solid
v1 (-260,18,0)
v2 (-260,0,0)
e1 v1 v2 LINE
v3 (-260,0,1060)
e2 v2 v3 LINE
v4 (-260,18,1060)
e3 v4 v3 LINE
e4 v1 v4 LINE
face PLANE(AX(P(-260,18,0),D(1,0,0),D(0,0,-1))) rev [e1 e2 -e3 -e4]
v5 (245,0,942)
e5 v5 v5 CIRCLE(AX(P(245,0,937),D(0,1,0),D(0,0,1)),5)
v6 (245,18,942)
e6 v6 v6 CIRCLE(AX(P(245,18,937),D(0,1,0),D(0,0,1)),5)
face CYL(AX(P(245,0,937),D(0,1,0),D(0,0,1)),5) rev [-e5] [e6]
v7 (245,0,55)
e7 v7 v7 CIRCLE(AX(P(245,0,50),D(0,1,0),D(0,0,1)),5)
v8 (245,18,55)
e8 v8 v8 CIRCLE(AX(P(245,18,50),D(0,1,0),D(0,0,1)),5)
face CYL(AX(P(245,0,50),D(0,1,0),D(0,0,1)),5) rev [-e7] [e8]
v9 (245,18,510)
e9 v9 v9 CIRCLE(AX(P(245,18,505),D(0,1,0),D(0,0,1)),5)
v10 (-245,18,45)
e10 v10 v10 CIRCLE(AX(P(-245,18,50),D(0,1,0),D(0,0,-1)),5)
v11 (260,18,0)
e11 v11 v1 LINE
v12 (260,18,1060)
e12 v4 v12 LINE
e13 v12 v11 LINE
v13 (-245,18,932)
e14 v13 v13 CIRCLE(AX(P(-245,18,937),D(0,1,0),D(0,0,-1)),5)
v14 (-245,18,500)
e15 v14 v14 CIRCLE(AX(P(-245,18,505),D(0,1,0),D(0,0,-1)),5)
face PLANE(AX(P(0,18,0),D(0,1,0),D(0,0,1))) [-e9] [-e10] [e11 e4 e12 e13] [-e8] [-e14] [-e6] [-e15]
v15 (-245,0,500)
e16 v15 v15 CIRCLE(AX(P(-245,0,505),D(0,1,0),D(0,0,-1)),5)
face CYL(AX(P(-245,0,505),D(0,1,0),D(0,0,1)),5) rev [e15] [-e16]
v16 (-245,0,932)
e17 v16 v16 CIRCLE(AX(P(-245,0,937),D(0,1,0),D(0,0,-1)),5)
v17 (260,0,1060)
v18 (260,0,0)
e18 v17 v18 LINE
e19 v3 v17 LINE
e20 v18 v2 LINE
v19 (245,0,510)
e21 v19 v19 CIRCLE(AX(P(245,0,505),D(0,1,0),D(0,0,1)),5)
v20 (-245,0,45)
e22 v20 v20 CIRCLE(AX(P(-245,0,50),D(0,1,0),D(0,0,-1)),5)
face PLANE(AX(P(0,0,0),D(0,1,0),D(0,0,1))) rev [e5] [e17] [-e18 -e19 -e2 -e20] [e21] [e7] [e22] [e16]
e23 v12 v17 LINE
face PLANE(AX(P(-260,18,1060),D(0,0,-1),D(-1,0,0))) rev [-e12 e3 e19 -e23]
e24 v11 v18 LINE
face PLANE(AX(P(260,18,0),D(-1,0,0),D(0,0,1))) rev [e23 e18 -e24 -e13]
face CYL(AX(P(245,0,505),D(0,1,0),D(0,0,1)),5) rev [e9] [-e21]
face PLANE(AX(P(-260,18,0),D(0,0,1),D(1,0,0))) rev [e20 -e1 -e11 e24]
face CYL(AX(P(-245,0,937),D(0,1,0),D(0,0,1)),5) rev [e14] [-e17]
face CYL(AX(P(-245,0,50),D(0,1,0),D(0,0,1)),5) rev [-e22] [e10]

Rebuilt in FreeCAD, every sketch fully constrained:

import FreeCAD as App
import Part
import Sketcher


def add_polygon(sketch, points):
    """Adds a closed chain of lines whose ends are joined by coincident constraints."""
    first, n = sketch.GeometryCount, len(points)
    for a, b in zip(points, points[1:] + points[:1]):
        sketch.addGeometry(Part.LineSegment(App.Vector(*a, 0), App.Vector(*b, 0)), False)
    for i in range(n):
        sketch.addConstraint(Sketcher.Constraint("Coincident", first + i, 2, first + (i + 1) % n, 1))

doc = App.newDocument("Part")
body = doc.addObject("PartDesign::Body", "Body")

sketch1 = body.newObject("Sketcher::SketchObject", "Sketch")
sketch1.AttachmentSupport = (doc.getObject("XZ_Plane"), [""])
sketch1.MapMode = "FlatFace"
add_polygon(sketch1, [(-260, 0), (-260, 1060), (260, 1060), (260, 0)])
sketch1.addConstraint([
    Sketcher.Constraint("Vertical", 0),
    Sketcher.Constraint("Horizontal", 1),
    Sketcher.Constraint("Vertical", 2),
    Sketcher.Constraint("Horizontal", 3),
    Sketcher.Constraint("Symmetric", 2, 2, 3, 2, -1, 1),
    Sketcher.Constraint("DistanceX", 1, 1, 1, 2, 520.0),
    Sketcher.Constraint("DistanceY", 0, 1, 0, 2, 1060.0),
])
pad1 = body.newObject("PartDesign::Pad", "Pad")
pad1.Profile = sketch1
pad1.Length = 18
pad1.Reversed = True

sketch2 = body.newObject("Sketcher::SketchObject", "Sketch001")
sketch2.AttachmentSupport = (doc.getObject("XZ_Plane"), [""])
sketch2.MapMode = "FlatFace"
sketch2.AttachmentOffset = App.Placement(App.Vector(0, 0, -18), App.Rotation())
sketch2.addGeometry([
    Part.Circle(App.Vector(245, 50, 0), App.Vector(0, 0, 1), 5),
    Part.Circle(App.Vector(-245, 50, 0), App.Vector(0, 0, 1), 5),
    Part.Circle(App.Vector(245, 505, 0), App.Vector(0, 0, 1), 5),
    Part.Circle(App.Vector(245, 937, 0), App.Vector(0, 0, 1), 5),
    Part.Circle(App.Vector(-245, 937, 0), App.Vector(0, 0, 1), 5),
    Part.Circle(App.Vector(-245, 505, 0), App.Vector(0, 0, 1), 5),
], False)
sketch2.addConstraint([
    Sketcher.Constraint("Equal", 0, 1),
    Sketcher.Constraint("Equal", 1, 2),
    Sketcher.Constraint("Equal", 2, 3),
    Sketcher.Constraint("Equal", 3, 4),
    Sketcher.Constraint("Equal", 4, 5),
    Sketcher.Constraint("Symmetric", 0, 3, 1, 3, -2),
    Sketcher.Constraint("Symmetric", 3, 3, 4, 3, -2),
    Sketcher.Constraint("Symmetric", 2, 3, 5, 3, -2),
    Sketcher.Constraint("Vertical", 0, 3, 2, 3),
    Sketcher.Constraint("Vertical", 2, 3, 3, 3),
    Sketcher.Constraint("Diameter", 0, 10.0),
    Sketcher.Constraint("DistanceX", -1, 1, 0, 3, 245.0),
    Sketcher.Constraint("DistanceY", -1, 1, 0, 3, 50.0),
    Sketcher.Constraint("DistanceY", -1, 1, 2, 3, 505.0),
    Sketcher.Constraint("DistanceY", -1, 1, 3, 3, 937.0),
])
pocket1 = body.newObject("PartDesign::Pocket", "Pocket")
pocket1.Profile = sketch2
pocket1.Type = "ThroughAll"
pocket1.Reversed = True

doc.recompute()
